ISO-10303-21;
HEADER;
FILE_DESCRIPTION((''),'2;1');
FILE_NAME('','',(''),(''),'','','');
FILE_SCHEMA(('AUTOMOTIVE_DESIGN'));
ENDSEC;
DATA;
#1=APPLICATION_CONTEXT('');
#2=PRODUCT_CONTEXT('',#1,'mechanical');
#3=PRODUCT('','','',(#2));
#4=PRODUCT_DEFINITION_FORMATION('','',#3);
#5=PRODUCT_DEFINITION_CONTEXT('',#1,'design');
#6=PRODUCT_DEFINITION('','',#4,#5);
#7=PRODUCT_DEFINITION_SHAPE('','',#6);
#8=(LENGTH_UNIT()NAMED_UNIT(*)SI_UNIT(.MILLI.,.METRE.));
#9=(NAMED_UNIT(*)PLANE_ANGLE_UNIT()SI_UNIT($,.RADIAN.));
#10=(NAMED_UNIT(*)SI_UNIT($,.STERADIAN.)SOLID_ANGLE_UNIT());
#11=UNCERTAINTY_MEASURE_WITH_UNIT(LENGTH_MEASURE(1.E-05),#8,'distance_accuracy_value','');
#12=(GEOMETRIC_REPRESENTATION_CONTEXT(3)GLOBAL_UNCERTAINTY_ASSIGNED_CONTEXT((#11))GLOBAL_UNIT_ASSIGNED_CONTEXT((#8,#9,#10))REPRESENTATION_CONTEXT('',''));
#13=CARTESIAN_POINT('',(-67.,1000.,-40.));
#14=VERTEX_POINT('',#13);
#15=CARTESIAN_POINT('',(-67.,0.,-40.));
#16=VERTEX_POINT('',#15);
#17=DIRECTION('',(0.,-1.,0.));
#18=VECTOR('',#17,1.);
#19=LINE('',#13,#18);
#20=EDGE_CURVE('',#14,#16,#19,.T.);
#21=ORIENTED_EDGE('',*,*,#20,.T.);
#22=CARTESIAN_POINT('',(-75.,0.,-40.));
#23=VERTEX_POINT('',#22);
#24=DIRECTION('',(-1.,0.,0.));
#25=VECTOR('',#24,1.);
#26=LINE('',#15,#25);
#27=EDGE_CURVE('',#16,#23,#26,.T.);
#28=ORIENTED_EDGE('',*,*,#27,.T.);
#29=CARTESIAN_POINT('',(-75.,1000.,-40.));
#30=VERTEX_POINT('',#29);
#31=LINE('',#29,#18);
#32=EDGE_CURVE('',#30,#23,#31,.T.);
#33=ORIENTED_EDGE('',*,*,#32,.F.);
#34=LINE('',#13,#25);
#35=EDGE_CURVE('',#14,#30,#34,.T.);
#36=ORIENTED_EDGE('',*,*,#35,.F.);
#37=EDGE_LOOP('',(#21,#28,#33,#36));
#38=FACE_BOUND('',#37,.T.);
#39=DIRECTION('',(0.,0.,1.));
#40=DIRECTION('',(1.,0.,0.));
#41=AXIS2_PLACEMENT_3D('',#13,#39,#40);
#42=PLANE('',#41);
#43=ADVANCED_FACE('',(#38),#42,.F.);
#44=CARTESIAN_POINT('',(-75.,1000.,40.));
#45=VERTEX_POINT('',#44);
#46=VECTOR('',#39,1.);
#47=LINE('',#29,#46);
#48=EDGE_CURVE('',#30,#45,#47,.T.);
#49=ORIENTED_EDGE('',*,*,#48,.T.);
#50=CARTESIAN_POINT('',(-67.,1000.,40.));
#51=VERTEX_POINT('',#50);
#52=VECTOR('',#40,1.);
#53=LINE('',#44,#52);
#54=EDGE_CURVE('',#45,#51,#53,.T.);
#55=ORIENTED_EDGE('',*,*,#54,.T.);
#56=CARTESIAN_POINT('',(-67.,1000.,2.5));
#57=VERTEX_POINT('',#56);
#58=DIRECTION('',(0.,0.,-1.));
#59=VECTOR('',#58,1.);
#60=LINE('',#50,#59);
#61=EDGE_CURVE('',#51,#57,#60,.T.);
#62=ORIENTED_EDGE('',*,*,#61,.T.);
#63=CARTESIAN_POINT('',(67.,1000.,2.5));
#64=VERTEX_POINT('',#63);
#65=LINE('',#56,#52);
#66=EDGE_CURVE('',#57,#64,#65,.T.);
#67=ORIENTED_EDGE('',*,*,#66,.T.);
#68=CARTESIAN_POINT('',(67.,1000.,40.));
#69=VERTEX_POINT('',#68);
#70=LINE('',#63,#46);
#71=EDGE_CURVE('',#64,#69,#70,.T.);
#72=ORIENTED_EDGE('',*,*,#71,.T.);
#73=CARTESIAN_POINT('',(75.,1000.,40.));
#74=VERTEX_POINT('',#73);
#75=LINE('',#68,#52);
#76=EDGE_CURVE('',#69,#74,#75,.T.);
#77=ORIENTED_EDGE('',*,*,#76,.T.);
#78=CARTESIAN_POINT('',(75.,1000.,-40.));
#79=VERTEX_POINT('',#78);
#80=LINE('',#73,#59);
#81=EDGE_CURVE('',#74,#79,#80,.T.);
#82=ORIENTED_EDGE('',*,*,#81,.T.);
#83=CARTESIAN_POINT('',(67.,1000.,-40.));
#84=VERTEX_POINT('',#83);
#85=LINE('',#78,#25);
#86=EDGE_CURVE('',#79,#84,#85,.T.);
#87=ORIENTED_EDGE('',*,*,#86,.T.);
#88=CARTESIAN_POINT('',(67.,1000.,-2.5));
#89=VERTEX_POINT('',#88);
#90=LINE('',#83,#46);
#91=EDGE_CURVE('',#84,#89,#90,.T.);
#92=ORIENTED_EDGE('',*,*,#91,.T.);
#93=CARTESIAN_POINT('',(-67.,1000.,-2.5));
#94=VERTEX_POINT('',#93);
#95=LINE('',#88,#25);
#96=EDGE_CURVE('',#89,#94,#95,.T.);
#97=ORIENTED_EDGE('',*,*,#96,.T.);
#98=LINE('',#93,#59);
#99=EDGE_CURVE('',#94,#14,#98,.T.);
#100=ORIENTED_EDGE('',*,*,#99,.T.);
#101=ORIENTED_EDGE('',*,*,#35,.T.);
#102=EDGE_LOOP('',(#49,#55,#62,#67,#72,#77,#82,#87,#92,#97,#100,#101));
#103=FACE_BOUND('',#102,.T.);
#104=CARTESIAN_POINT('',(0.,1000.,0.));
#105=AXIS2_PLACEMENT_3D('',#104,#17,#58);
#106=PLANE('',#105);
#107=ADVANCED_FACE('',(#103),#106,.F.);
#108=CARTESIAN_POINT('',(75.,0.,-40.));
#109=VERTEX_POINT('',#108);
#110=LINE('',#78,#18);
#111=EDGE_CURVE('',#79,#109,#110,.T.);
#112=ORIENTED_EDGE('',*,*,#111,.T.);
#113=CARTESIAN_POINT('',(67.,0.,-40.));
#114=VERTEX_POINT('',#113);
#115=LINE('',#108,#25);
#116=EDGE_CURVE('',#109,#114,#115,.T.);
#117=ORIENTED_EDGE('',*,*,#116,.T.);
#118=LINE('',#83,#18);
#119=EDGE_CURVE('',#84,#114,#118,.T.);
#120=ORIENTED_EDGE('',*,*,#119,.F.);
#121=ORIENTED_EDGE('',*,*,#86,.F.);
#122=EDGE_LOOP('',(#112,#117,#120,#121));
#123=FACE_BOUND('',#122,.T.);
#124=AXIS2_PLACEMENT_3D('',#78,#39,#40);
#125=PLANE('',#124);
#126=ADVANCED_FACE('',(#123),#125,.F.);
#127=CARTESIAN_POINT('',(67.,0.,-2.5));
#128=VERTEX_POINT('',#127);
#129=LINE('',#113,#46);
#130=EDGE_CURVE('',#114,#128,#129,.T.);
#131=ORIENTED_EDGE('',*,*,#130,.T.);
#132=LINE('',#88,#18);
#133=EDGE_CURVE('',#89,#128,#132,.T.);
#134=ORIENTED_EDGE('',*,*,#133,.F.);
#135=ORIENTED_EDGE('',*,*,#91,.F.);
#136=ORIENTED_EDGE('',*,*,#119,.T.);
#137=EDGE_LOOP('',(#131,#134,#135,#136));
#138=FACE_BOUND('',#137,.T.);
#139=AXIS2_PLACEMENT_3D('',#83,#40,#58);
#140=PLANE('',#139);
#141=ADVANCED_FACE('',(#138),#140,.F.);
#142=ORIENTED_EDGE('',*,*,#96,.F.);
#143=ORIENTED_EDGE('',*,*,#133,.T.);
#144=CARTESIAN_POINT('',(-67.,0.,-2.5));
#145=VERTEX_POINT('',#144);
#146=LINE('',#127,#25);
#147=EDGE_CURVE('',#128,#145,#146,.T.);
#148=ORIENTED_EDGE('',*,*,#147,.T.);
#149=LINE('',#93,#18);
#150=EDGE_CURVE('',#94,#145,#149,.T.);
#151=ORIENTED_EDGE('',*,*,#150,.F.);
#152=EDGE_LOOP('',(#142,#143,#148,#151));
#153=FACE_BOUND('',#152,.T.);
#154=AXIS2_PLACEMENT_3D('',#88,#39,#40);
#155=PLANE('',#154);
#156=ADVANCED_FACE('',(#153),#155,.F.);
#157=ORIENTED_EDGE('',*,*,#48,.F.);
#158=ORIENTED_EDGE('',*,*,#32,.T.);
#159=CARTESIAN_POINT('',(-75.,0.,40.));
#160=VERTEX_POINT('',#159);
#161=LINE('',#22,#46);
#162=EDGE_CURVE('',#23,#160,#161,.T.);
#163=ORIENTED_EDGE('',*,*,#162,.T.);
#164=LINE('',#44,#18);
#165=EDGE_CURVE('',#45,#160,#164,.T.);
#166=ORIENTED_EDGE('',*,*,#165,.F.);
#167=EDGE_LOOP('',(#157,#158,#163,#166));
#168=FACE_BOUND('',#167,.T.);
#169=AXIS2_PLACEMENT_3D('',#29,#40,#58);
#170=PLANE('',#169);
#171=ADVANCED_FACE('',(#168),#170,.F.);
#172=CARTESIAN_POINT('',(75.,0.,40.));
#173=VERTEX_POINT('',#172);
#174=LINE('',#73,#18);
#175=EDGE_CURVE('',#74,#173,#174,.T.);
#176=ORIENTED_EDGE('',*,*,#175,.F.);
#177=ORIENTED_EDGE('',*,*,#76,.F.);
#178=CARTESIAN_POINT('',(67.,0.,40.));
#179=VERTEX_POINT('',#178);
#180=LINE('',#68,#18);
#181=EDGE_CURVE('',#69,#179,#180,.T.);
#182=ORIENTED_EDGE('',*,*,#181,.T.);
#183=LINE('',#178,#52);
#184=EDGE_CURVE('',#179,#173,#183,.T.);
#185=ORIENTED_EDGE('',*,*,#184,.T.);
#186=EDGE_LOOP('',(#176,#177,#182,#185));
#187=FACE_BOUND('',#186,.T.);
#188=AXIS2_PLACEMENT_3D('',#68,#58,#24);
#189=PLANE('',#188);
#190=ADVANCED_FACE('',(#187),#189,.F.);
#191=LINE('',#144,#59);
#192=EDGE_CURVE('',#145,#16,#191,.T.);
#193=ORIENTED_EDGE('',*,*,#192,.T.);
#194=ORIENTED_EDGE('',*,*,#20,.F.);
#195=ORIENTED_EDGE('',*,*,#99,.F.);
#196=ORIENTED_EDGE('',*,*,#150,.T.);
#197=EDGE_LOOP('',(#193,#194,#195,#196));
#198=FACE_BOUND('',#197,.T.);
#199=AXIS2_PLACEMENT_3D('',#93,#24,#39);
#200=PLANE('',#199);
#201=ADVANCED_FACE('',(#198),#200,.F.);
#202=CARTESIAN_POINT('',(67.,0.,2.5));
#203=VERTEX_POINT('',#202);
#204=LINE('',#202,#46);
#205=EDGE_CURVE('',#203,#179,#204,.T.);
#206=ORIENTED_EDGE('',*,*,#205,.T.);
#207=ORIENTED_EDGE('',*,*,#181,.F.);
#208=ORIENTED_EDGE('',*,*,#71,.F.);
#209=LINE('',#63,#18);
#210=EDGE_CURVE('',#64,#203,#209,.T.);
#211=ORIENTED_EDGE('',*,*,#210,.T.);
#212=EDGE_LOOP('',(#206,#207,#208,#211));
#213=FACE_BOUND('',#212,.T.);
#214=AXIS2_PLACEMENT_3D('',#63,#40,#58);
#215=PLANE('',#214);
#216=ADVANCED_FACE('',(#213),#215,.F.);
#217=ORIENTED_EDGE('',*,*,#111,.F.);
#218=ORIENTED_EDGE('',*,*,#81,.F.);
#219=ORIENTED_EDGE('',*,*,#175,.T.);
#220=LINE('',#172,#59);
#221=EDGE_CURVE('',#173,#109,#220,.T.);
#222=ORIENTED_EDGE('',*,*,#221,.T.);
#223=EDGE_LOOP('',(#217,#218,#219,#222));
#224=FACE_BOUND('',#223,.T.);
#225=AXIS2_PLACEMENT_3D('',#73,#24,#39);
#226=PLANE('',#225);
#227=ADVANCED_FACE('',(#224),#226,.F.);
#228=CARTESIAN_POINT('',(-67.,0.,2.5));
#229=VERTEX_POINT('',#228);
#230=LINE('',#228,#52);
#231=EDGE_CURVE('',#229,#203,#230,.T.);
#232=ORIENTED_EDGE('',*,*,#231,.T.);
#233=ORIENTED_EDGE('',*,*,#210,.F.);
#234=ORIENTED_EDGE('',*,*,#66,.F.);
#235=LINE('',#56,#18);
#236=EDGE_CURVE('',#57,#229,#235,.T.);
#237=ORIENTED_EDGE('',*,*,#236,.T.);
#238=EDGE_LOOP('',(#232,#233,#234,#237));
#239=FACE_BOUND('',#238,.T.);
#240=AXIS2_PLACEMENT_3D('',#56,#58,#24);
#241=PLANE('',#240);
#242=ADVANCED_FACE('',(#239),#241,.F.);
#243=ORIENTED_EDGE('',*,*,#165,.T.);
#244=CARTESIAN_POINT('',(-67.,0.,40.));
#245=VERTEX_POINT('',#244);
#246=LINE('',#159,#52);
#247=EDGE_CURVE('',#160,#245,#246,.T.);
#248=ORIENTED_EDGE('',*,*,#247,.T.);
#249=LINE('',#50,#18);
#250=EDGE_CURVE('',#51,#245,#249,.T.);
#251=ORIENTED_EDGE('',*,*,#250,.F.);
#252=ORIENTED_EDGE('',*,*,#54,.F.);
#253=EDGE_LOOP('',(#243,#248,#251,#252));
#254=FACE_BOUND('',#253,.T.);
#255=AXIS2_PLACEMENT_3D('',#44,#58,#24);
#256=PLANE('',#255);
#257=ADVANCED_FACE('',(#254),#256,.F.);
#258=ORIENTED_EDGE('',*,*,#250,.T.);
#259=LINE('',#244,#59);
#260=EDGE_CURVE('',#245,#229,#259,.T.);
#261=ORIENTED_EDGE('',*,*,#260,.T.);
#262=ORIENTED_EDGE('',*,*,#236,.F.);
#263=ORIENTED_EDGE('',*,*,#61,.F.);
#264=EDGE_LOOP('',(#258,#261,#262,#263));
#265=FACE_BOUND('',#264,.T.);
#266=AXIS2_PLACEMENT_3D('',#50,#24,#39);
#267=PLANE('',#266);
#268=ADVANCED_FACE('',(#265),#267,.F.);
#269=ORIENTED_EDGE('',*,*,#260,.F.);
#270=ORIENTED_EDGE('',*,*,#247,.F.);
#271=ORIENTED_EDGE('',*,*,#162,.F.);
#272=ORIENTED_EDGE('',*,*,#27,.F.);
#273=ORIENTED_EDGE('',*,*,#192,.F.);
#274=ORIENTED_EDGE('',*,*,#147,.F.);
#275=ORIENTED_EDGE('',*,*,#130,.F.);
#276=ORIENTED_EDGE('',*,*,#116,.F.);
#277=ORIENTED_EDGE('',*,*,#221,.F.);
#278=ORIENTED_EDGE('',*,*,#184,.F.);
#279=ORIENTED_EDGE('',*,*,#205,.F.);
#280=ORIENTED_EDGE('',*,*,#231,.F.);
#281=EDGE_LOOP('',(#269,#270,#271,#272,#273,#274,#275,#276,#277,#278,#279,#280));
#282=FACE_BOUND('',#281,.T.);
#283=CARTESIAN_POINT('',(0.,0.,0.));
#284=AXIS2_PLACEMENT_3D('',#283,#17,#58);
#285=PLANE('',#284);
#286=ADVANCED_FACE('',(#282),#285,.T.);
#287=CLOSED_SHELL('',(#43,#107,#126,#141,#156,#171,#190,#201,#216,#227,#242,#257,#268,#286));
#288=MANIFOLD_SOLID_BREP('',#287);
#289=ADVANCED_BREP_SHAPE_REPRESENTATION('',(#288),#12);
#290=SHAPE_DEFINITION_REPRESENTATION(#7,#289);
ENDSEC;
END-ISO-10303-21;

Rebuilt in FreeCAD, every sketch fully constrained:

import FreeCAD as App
import Part
import Sketcher

doc = App.newDocument("Part")
params = doc.addObject("Spreadsheet::Sheet", "Params")
for row, (alias, value) in enumerate([
    ("sketch1_width", "8 mm"),
    ("sketch1_width2", "134 mm"),
    ("sketch1_height", "80 mm"),
    ("sketch1_height2", "37.5 mm"),
    ("pad1_length", "1000 mm"),
], start=1):
    params.set(f"A{row}", alias)
    params.set(f"B{row}", "=" + value)
    params.setAlias(f"B{row}", alias)

body = doc.addObject("PartDesign::Body", "Body")

sketch1 = body.newObject("Sketcher::SketchObject", "Sketch")
sketch1.AttachmentSupport = (doc.getObject("XZ_Plane"), [""])
sketch1.MapMode = "FlatFace"
sketch1.addGeometry([
    Part.LineSegment(App.Vector(-67, -2.5, 0), App.Vector(-67, -40, 0)),
    Part.LineSegment(App.Vector(-67, -40, 0), App.Vector(-75, -40, 0)),
    Part.LineSegment(App.Vector(-75, -40, 0), App.Vector(-75, 40, 0)),
    Part.LineSegment(App.Vector(-75, 40, 0), App.Vector(-67, 40, 0)),
    Part.LineSegment(App.Vector(-67, 40, 0), App.Vector(-67, 2.5, 0)),
    Part.LineSegment(App.Vector(-67, 2.5, 0), App.Vector(67, 2.5, 0)),
    Part.LineSegment(App.Vector(67, 2.5, 0), App.Vector(67, 40, 0)),
    Part.LineSegment(App.Vector(67, 40, 0), App.Vector(75, 40, 0)),
    Part.LineSegment(App.Vector(75, 40, 0), App.Vector(75, -40, 0)),
    Part.LineSegment(App.Vector(75, -40, 0), App.Vector(67, -40, 0)),
    Part.LineSegment(App.Vector(67, -40, 0), App.Vector(67, -2.5, 0)),
    Part.LineSegment(App.Vector(67, -2.5, 0), App.Vector(-67, -2.5, 0)),
], False)
sketch1.addConstraint([
    Sketcher.Constraint("Coincident", 0, 2, 1, 1),
    Sketcher.Constraint("Coincident", 1, 2, 2, 1),
    Sketcher.Constraint("Coincident", 2, 2, 3, 1),
    Sketcher.Constraint("Coincident", 3, 2, 4, 1),
    Sketcher.Constraint("Coincident", 4, 2, 5, 1),
    Sketcher.Constraint("Coincident", 5, 2, 6, 1),
    Sketcher.Constraint("Coincident", 6, 2, 7, 1),
    Sketcher.Constraint("Coincident", 7, 2, 8, 1),
    Sketcher.Constraint("Coincident", 8, 2, 9, 1),
    Sketcher.Constraint("Coincident", 9, 2, 10, 1),
    Sketcher.Constraint("Coincident", 10, 2, 11, 1),
    Sketcher.Constraint("Coincident", 11, 2, 0, 1),
    Sketcher.Constraint("Vertical", 0),
    Sketcher.Constraint("Horizontal", 1),
    Sketcher.Constraint("Vertical", 2),
    Sketcher.Constraint("Horizontal", 3),
    Sketcher.Constraint("Vertical", 4),
    Sketcher.Constraint("Horizontal", 5),
    Sketcher.Constraint("Vertical", 6),
    Sketcher.Constraint("Horizontal", 7),
    Sketcher.Constraint("Vertical", 8),
    Sketcher.Constraint("Horizontal", 9),
    Sketcher.Constraint("Vertical", 10),
    Sketcher.Constraint("Horizontal", 11),
    Sketcher.Constraint("Symmetric", 0, 2, 6, 2, -1, 1),
    Sketcher.Constraint("Symmetric", 2, 2, 8, 2, -1, 1),
    Sketcher.Constraint("Symmetric", 4, 2, 10, 2, -1, 1),
    Sketcher.Constraint("Symmetric", 3, 2, 6, 2, -2),
    Sketcher.Constraint("DistanceX", 1, 2, 1, 1, 8.0),
    Sketcher.Constraint("DistanceX", 5, 1, 5, 2, 134.0),
    Sketcher.Constraint("DistanceY", 2, 1, 2, 2, 80.0),
    Sketcher.Constraint("DistanceY", 0, 2, 0, 1, 37.5),
])
sketch1.setExpression("Constraints[28]", "Params.sketch1_width")
sketch1.setExpression("Constraints[29]", "Params.sketch1_width2")
sketch1.setExpression("Constraints[30]", "Params.sketch1_height")
sketch1.setExpression("Constraints[31]", "Params.sketch1_height2")
pad1 = body.newObject("PartDesign::Pad", "Pad")
pad1.Profile = sketch1
pad1.setExpression("Length", "Params.pad1_length")
pad1.Reversed = True

doc.recompute()
